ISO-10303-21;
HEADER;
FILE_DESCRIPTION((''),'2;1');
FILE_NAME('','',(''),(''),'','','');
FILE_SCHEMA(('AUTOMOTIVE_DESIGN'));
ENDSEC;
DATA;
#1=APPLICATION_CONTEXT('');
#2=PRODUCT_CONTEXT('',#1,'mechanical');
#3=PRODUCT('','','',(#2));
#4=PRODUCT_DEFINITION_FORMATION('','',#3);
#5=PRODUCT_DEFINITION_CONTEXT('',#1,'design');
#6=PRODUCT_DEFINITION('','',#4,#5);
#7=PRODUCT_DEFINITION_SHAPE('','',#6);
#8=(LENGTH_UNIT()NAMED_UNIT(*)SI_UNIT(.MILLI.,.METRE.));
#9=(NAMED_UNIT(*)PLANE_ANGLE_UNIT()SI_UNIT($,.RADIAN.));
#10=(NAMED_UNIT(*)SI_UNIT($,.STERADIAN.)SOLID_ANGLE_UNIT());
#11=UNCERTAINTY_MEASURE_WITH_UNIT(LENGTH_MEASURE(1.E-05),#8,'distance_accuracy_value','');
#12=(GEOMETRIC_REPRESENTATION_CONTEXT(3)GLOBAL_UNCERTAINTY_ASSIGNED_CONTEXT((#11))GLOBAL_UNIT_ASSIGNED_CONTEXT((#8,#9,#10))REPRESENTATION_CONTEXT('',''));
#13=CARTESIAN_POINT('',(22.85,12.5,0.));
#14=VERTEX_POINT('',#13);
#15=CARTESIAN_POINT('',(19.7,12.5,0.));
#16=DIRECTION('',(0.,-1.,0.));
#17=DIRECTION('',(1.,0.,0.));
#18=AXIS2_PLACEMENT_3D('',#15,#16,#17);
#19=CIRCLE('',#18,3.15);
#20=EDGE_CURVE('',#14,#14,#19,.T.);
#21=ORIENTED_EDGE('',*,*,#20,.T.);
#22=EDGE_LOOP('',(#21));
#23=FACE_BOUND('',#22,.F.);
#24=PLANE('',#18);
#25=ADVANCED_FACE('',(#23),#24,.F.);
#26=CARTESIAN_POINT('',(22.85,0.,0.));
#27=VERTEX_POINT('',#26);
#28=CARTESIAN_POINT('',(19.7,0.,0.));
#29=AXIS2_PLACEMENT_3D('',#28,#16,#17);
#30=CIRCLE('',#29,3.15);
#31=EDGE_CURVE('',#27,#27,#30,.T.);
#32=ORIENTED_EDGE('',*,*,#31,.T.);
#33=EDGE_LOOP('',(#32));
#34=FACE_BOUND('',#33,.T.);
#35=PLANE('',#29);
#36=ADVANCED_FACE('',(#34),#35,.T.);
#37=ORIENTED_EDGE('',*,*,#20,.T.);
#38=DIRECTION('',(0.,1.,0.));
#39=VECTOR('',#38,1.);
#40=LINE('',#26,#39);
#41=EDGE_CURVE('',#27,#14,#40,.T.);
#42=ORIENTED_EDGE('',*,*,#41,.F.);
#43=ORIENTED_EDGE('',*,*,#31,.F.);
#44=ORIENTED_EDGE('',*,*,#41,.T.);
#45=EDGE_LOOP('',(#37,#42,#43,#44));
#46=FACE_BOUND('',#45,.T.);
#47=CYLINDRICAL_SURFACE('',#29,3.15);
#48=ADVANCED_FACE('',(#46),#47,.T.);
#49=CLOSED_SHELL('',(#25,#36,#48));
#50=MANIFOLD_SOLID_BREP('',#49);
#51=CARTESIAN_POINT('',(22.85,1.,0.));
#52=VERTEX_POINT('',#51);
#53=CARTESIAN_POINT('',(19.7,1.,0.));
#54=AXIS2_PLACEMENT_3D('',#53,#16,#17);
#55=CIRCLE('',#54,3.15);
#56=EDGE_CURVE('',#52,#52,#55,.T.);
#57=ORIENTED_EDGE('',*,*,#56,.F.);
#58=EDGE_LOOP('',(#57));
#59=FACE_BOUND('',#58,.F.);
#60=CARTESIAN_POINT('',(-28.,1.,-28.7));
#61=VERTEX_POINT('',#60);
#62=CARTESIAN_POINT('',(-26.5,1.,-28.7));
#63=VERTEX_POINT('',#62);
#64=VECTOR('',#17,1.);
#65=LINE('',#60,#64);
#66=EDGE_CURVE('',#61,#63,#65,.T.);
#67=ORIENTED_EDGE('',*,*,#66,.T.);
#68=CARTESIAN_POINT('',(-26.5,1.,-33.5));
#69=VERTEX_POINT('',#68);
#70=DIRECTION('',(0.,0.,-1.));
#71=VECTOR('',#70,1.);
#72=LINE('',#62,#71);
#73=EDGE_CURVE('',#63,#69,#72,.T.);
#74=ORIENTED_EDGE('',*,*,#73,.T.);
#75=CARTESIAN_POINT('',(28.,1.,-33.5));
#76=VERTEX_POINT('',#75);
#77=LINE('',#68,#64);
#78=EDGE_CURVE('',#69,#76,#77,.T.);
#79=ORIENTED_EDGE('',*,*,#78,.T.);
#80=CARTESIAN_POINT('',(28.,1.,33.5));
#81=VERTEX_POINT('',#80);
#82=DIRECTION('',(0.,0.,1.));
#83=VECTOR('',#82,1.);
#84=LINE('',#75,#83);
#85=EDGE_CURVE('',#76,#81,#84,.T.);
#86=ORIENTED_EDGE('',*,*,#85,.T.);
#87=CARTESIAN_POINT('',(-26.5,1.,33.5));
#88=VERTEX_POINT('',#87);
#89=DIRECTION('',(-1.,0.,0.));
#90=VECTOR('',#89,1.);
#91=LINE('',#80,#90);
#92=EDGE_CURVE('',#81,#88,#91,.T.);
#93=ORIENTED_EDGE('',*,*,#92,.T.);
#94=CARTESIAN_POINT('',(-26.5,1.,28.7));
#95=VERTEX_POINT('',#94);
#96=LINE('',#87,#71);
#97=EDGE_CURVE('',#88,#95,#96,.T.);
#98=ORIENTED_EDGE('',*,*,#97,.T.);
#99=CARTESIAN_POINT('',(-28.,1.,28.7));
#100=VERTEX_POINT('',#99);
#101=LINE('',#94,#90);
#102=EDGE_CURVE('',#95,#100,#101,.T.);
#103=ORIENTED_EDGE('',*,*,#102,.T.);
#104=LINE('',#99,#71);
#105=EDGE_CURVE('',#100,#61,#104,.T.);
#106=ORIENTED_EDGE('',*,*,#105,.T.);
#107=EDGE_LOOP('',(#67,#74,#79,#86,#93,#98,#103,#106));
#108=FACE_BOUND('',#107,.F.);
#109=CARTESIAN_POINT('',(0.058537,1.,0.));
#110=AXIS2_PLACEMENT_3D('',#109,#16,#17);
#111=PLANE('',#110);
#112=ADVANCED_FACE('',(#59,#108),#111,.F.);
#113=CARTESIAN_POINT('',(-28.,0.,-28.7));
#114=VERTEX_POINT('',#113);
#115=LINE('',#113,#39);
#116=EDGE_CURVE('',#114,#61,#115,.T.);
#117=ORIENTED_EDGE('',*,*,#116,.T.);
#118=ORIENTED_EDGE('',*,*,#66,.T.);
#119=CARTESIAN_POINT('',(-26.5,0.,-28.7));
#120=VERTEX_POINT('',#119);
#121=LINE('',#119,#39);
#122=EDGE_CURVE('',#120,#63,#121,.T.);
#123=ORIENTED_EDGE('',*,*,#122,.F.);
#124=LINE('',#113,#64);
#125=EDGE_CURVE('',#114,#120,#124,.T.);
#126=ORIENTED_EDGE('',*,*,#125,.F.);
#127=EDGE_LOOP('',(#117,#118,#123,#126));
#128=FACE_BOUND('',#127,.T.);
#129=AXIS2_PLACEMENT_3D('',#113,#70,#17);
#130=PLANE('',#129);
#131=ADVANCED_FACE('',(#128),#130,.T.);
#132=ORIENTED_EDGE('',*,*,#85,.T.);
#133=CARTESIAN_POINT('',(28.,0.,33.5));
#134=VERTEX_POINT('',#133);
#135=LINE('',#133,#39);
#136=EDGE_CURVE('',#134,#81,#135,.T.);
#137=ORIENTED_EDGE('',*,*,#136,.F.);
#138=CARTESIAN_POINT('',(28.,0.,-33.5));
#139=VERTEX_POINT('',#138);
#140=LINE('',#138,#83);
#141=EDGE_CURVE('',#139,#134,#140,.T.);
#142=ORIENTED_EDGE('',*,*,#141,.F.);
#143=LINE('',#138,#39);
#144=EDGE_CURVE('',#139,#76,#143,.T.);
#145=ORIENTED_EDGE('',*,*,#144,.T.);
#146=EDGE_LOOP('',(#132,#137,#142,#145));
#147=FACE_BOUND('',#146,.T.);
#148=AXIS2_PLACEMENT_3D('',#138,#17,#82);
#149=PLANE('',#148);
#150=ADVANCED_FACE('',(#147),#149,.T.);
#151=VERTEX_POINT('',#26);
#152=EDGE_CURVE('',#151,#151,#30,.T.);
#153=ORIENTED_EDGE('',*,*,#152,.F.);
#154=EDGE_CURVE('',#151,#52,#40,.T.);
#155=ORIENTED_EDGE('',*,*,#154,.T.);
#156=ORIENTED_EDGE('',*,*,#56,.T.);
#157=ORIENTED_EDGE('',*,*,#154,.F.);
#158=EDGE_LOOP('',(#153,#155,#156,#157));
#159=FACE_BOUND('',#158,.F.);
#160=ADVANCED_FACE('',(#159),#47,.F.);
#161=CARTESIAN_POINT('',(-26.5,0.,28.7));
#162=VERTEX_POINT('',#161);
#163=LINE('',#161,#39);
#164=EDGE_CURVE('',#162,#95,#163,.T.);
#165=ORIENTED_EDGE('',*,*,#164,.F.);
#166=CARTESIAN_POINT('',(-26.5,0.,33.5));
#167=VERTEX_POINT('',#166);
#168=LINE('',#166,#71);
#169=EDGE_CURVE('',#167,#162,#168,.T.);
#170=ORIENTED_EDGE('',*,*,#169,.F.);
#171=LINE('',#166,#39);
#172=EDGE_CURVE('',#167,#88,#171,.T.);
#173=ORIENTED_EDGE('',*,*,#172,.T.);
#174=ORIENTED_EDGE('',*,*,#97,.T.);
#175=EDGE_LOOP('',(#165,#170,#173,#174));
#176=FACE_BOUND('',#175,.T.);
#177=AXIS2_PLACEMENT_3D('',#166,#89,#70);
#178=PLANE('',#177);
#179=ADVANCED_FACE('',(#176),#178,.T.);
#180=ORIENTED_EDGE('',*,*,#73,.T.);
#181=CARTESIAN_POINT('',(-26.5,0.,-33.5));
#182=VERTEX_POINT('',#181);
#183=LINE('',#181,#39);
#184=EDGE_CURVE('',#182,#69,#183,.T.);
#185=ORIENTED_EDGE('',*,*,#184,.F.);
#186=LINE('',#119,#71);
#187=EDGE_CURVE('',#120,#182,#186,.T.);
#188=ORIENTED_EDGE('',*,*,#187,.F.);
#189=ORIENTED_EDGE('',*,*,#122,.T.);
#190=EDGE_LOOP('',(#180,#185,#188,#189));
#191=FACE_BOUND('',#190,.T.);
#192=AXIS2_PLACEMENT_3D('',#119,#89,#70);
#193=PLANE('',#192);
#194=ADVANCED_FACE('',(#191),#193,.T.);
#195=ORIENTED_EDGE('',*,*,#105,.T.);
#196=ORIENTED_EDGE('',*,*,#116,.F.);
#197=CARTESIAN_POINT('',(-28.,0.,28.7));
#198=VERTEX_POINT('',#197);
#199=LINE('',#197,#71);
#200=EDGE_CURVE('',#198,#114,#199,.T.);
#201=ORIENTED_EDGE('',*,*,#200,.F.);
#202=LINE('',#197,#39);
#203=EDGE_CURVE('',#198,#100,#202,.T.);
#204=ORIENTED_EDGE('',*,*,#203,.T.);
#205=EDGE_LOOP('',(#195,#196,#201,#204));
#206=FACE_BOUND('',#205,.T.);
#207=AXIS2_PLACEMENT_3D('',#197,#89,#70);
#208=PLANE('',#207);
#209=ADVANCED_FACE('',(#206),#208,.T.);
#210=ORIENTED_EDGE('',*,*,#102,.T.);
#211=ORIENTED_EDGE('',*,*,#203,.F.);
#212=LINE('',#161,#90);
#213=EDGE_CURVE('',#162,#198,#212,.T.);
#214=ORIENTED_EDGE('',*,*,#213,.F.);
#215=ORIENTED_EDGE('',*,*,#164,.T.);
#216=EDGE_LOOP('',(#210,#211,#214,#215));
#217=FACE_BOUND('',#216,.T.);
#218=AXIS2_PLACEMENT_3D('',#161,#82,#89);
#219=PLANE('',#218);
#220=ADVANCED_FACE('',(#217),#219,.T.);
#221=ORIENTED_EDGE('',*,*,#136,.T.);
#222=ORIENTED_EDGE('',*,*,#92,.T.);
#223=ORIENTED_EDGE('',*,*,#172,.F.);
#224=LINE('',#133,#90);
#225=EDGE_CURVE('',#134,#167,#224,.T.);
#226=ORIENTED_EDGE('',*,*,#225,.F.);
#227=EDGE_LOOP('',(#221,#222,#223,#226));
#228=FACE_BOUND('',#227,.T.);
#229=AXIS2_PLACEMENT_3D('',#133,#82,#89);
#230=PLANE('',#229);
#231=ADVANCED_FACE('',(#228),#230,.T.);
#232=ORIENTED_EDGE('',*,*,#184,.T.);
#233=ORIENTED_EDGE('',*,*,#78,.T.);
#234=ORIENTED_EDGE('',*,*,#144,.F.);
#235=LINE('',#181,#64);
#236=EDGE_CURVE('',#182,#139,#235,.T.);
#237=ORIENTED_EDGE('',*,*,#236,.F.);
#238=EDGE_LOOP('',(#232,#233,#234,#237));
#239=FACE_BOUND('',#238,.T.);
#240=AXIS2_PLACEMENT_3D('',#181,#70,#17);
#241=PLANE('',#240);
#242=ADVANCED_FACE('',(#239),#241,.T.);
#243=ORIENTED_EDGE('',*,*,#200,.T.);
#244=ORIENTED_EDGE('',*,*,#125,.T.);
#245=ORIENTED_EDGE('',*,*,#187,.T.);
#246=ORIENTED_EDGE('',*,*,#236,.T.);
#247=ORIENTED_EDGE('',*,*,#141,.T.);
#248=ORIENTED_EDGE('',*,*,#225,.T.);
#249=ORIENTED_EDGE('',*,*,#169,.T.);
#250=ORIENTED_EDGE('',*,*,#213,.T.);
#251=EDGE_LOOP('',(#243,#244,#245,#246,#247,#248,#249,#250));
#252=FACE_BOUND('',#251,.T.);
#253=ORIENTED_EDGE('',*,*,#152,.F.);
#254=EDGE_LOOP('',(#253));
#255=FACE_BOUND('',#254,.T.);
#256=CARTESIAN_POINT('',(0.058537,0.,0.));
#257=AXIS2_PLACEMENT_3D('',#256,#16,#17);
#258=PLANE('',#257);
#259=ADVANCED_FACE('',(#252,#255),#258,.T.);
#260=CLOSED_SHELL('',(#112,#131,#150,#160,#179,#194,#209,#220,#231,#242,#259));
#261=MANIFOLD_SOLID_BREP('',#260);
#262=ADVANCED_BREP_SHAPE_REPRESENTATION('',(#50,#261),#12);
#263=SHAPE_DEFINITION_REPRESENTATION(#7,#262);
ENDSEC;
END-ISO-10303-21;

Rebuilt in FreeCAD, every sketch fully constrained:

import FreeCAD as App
import Part
import Sketcher

V = App.Vector

doc = App.newDocument("Part")
body = doc.addObject("PartDesign::Body", "Body")

# Sketch on XZ plane
sketch1 = body.newObject("Sketcher::SketchObject", "Sketch")
sketch1.AttachmentSupport = (doc.getObject("XZ_Plane"), [""])
sketch1.MapMode = "FlatFace"
sketch1.addGeometry(Part.Circle(V(19.7, 0, 0), V(0, 0, 1), 3.1), False)
sketch1.addConstraint(Sketcher.Constraint("PointOnObject", 0, 3, -1))
sketch1.addConstraint(Sketcher.Constraint("Diameter", 0, 6.3))
sketch1.addConstraint(Sketcher.Constraint("DistanceX", -1, 1, 0, 3, 19.7))
pad1 = body.newObject("PartDesign::Pad", "Pad")
pad1.Profile = sketch1
pad1.Length = 12.5
pad1.Reversed = True
body2 = doc.addObject("PartDesign::Body", "Body001")

# Sketch on XZ plane
sketch2 = body2.newObject("Sketcher::SketchObject", "Sketch001")
sketch2.AttachmentSupport = (doc.getObject("XZ_Plane001"), [""])
sketch2.MapMode = "FlatFace"
sketch2.addGeometry(Part.LineSegment(V(-26.5, -33.5, 0), V(28, -33.5, 0)), False)
sketch2.addGeometry(Part.LineSegment(V(28, -33.5, 0), V(28, 33.5, 0)), False)
sketch2.addGeometry(Part.LineSegment(V(28, 33.5, 0), V(-26.5, 33.5, 0)), False)
sketch2.addGeometry(Part.LineSegment(V(-26.5, 33.5, 0), V(-26.5, 28.7, 0)), False)
sketch2.addGeometry(Part.LineSegment(V(-26.5, 28.7, 0), V(-28, 28.7, 0)), False)
sketch2.addGeometry(Part.LineSegment(V(-28, 28.7, 0), V(-28, -28.7, 0)), False)
sketch2.addGeometry(Part.LineSegment(V(-28, -28.7, 0), V(-26.5, -28.7, 0)), False)
sketch2.addGeometry(Part.LineSegment(V(-26.5, -28.7, 0), V(-26.5, -33.5, 0)), False)
sketch2.addGeometry(Part.Circle(V(19.7, 0, 0), V(0, 0, 1), 3.1), False)
sketch2.addConstraint(Sketcher.Constraint("Coincident", 0, 2, 1, 1))
sketch2.addConstraint(Sketcher.Constraint("Coincident", 1, 2, 2, 1))
sketch2.addConstraint(Sketcher.Constraint("Coincident", 2, 2, 3, 1))
sketch2.addConstraint(Sketcher.Constraint("Coincident", 3, 2, 4, 1))
sketch2.addConstraint(Sketcher.Constraint("Coincident", 4, 2, 5, 1))
sketch2.addConstraint(Sketcher.Constraint("Coincident", 5, 2, 6, 1))
sketch2.addConstraint(Sketcher.Constraint("Coincident", 6, 2, 7, 1))
sketch2.addConstraint(Sketcher.Constraint("Coincident", 7, 2, 0, 1))
sketch2.addConstraint(Sketcher.Constraint("Horizontal", 0))
sketch2.addConstraint(Sketcher.Constraint("Vertical", 1))
sketch2.addConstraint(Sketcher.Constraint("Horizontal", 2))
sketch2.addConstraint(Sketcher.Constraint("Vertical", 3))
sketch2.addConstraint(Sketcher.Constraint("Horizontal", 4))
sketch2.addConstraint(Sketcher.Constraint("Vertical", 5))
sketch2.addConstraint(Sketcher.Constraint("Horizontal", 6))
sketch2.addConstraint(Sketcher.Constraint("Vertical", 7))
sketch2.addConstraint(Sketcher.Constraint("Symmetric", 3, 2, 6, 2, -1))
sketch2.addConstraint(Sketcher.Constraint("PointOnObject", 8, 3, -1))
sketch2.addConstraint(Sketcher.Constraint("Equal", 3, 7))
sketch2.addConstraint(Sketcher.Constraint("Diameter", 8, 6.3))
sketch2.addConstraint(Sketcher.Constraint("DistanceY", 1, 1, 1, 2, 67.0))
sketch2.addConstraint(Sketcher.Constraint("DistanceX", 0, 1, 0, 2, 54.5))
sketch2.addConstraint(Sketcher.Constraint("DistanceX", 4, 2, 4, 1, 1.5))
sketch2.addConstraint(Sketcher.Constraint("DistanceY", 3, 2, 3, 1, 4.8))
sketch2.addConstraint(Sketcher.Constraint("DistanceX", -1, 1, 0, 2, 28.0))
sketch2.addConstraint(Sketcher.Constraint("DistanceX", -1, 1, 8, 3, 19.7))
pad2 = body2.newObject("PartDesign::Pad", "Pad001")
pad2.Profile = sketch2
pad2.Length = 1
pad2.Reversed = True

doc.recompute()
